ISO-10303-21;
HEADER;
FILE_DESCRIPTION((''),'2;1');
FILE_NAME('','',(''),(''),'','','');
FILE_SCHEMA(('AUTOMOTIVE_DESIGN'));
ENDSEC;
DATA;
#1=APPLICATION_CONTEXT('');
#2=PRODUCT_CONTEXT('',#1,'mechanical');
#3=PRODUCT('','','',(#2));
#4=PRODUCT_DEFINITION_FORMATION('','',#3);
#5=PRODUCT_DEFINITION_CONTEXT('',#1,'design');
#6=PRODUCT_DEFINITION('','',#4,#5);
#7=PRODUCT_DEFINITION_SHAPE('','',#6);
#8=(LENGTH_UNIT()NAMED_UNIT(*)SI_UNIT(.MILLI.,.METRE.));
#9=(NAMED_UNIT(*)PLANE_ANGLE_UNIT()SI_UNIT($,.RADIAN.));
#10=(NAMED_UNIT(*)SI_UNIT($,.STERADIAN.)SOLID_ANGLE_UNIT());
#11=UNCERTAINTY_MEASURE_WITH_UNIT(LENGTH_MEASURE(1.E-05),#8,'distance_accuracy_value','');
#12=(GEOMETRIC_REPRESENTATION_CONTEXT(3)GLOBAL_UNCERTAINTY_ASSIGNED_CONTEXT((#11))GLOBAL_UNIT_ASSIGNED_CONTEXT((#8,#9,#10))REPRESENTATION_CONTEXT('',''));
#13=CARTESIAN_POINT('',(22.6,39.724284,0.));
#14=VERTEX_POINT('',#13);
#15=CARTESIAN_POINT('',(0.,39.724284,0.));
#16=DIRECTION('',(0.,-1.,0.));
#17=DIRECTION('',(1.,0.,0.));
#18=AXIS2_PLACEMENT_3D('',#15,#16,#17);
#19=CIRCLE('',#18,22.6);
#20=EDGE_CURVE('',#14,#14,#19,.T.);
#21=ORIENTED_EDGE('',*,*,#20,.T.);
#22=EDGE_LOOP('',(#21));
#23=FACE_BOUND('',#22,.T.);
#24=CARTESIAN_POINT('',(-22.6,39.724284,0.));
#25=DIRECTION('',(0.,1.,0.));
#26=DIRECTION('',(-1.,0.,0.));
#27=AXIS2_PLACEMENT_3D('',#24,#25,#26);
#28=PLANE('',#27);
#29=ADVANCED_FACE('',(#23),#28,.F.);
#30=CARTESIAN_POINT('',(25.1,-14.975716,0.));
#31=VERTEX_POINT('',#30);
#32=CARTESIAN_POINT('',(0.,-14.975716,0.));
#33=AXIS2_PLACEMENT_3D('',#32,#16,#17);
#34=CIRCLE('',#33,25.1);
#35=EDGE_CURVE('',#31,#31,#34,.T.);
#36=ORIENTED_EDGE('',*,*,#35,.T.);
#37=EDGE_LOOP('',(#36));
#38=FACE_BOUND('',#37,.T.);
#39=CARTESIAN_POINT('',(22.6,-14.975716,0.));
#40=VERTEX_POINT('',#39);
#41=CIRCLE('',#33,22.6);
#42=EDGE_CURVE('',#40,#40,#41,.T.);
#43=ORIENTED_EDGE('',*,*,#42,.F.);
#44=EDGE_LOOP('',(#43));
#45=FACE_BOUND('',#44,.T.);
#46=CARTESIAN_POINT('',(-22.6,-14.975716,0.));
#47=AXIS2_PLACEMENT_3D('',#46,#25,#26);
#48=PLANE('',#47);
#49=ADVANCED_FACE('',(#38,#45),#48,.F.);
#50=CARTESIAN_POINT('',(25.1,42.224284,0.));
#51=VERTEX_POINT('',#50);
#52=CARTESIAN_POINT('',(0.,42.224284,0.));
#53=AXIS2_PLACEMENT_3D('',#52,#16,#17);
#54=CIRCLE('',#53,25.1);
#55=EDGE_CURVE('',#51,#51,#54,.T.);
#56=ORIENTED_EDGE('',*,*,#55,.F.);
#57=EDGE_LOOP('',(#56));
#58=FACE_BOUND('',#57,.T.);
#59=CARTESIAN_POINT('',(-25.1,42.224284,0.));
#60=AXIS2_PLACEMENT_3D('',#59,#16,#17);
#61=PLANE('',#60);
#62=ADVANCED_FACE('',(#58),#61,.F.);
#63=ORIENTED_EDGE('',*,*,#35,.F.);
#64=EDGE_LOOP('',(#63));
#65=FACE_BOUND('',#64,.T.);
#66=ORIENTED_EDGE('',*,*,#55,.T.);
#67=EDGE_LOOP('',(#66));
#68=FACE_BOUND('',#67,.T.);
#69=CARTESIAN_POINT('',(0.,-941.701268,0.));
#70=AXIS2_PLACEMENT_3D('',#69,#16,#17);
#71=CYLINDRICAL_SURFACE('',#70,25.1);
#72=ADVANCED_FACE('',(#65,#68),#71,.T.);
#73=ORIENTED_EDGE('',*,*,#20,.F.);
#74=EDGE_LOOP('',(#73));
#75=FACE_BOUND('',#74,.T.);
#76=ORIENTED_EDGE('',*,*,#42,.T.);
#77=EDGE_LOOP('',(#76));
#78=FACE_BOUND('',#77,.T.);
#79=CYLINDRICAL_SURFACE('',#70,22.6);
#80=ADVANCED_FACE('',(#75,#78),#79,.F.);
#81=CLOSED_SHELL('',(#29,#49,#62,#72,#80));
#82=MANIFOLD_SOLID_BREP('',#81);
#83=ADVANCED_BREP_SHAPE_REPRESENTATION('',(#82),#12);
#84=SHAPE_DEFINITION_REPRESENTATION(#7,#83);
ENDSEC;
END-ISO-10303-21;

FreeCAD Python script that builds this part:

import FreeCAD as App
import Part
import Sketcher


def add_polygon(sketch, points):
    """Adds a closed chain of lines whose ends are joined by coincident constraints."""
    first, n = sketch.GeometryCount, len(points)
    for a, b in zip(points, points[1:] + points[:1]):
        sketch.addGeometry(Part.LineSegment(App.Vector(*a, 0), App.Vector(*b, 0)), False)
    for i in range(n):
        sketch.addConstraint(Sketcher.Constraint("Coincident", first + i, 2, first + (i + 1) % n, 1))

doc = App.newDocument("Part")
body = doc.addObject("PartDesign::Body", "Body")

# Sketch on XY plane
sketch1 = body.newObject("Sketcher::SketchObject", "Sketch")
sketch1.AttachmentSupport = (doc.getObject("XY_Plane"), [""])
sketch1.MapMode = "FlatFace"
add_polygon(sketch1, [(-22.6, -14.975716), (-22.6, 39.724284), (0, 39.724284), (0, 42.224284), (-25.1, 42.224284), (-25.1, -14.975716)])  # lines 0-5
sketch1.addConstraint(Sketcher.Constraint("Vertical", 0))
sketch1.addConstraint(Sketcher.Constraint("Horizontal", 1))
sketch1.addConstraint(Sketcher.Constraint("Vertical", 2))
sketch1.addConstraint(Sketcher.Constraint("Horizontal", 3))
sketch1.addConstraint(Sketcher.Constraint("Vertical", 4))
sketch1.addConstraint(Sketcher.Constraint("Horizontal", 5))
sketch1.addConstraint(Sketcher.Constraint("PointOnObject", 1, 2, -2))
sketch1.addConstraint(Sketcher.Constraint("Equal", 5, 2))
sketch1.addConstraint(Sketcher.Constraint("DistanceX", 1, 1, 1, 2, 22.6))
sketch1.addConstraint(Sketcher.Constraint("DistanceX", 3, 2, 3, 1, 25.1))
sketch1.addConstraint(Sketcher.Constraint("DistanceY", 0, 1, 0, 2, 54.7))
sketch1.addConstraint(Sketcher.Constraint("DistanceY", -1, 1, 0, 2, 39.724284))
revolution = body.newObject("PartDesign::Revolution", "Revolution")
revolution.Profile = sketch1
revolution.ReferenceAxis = (sketch1, ["V_Axis"])
revolution.Angle = 360

doc.recompute()
